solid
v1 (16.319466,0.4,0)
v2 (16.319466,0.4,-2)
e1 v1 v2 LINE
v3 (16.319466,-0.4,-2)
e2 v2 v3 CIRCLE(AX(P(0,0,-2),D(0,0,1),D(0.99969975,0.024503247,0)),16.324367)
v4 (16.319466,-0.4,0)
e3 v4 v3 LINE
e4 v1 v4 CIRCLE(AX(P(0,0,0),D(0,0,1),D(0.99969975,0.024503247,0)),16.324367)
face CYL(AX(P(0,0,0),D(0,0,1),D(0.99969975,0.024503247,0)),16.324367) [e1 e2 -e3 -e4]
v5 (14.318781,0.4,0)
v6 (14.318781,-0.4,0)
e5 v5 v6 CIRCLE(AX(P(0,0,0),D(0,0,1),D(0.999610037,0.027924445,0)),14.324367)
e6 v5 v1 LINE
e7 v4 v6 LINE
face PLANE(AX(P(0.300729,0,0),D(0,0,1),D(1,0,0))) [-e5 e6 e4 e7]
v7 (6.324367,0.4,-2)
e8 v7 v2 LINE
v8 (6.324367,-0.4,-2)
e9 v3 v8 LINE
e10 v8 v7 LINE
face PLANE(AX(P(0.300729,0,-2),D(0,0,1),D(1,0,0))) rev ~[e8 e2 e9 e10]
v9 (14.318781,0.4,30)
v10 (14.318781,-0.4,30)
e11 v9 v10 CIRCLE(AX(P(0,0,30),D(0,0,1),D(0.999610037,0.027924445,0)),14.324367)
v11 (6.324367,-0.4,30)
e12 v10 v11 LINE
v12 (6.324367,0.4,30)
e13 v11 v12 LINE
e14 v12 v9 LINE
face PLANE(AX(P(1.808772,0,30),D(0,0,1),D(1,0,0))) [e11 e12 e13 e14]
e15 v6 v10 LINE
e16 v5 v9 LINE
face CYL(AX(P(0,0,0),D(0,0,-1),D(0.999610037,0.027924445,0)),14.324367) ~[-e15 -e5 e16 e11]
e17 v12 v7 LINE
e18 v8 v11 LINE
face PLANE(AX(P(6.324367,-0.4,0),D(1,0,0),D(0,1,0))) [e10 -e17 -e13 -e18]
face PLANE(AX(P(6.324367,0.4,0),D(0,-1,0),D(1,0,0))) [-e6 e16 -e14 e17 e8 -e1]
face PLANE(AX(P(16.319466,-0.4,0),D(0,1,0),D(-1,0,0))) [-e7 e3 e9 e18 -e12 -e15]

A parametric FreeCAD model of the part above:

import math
import FreeCAD as App
import Part
import Sketcher

doc = App.newDocument("Part")
params = doc.addObject("Spreadsheet::Sheet", "Params")
for row, (alias, value) in enumerate([
    ("sketch1_height", "0.8 mm"),
    ("pad1_length", "30 mm"),
    ("sketch2_height", "0.8 mm"),
    ("pad2_length", "2 mm"),
], start=1):
    params.set(f"A{row}", alias)
    params.set(f"B{row}", "=" + value)
    params.setAlias(f"B{row}", alias)

body = doc.addObject("PartDesign::Body", "Body")

sketch1 = doc.addObject("Sketcher::SketchObject", "Sketch")
body.addObject(sketch1)
sketch1.AttachmentSupport = (doc.XY_Plane, [""])
sketch1.MapMode = "FlatFace"
sketch1.addGeometry([
    Part.LineSegment(App.Vector(6.324367, 0.4, 0), App.Vector(14.318781, 0.4, 0)),
    Part.ArcOfCircle(Part.Circle(App.Vector(0, 0, 0), App.Vector(0, 0, 1), 14.324367), math.radians(1.600161), math.radians(358.399839)),
    Part.LineSegment(App.Vector(14.318781, -0.4, 0), App.Vector(6.324367, -0.4, 0)),
    Part.LineSegment(App.Vector(6.324367, -0.4, 0), App.Vector(6.324367, 0.4, 0)),
], False)
sketch1.addConstraint([
    Sketcher.Constraint("Coincident", 0, 2, 1, 1),
    Sketcher.Constraint("Coincident", 1, 2, 2, 1),
    Sketcher.Constraint("Coincident", 2, 2, 3, 1),
    Sketcher.Constraint("Coincident", 3, 2, 0, 1),
    Sketcher.Constraint("Horizontal", 0),
    Sketcher.Constraint("Horizontal", 2),
    Sketcher.Constraint("Vertical", 3),
    Sketcher.Constraint("Coincident", 1, 3, -1, 1),
    Sketcher.Constraint("Vertical", 0, 2, 1, 2),
    Sketcher.Constraint("DistanceY", 3, 1, 3, 2, 0.8),
    Sketcher.Constraint("Radius", 1, 14.324367),
    Sketcher.Constraint("DistanceX", 0, 1, 0, 2, 7.994414),
])
sketch1.setExpression("Constraints[9]", "Params.sketch1_height")
pad1 = doc.addObject("PartDesign::Pad", "Pad")
body.addObject(pad1)
pad1.Profile = sketch1
pad1.setExpression("Length", "Params.pad1_length")

sketch2 = doc.addObject("Sketcher::SketchObject", "Sketch001")
body.addObject(sketch2)
sketch2.AttachmentSupport = (doc.XY_Plane, [""])
sketch2.MapMode = "FlatFace"
sketch2.addGeometry([
    Part.ArcOfCircle(Part.Circle(App.Vector(0, 0, 0), App.Vector(0, 0, 1), 16.324367), math.radians(1.404073), math.radians(358.595927)),
    Part.LineSegment(App.Vector(16.319466, -0.4, 0), App.Vector(6.324367, -0.4, 0)),
    Part.LineSegment(App.Vector(6.324367, -0.4, 0), App.Vector(6.324367, 0.4, 0)),
    Part.LineSegment(App.Vector(6.324367, 0.4, 0), App.Vector(16.319466, 0.4, 0)),
], False)
sketch2.addConstraint([
    Sketcher.Constraint("Coincident", 0, 2, 1, 1),
    Sketcher.Constraint("Coincident", 1, 2, 2, 1),
    Sketcher.Constraint("Coincident", 2, 2, 3, 1),
    Sketcher.Constraint("Coincident", 3, 2, 0, 1),
    Sketcher.Constraint("Horizontal", 1),
    Sketcher.Constraint("Vertical", 2),
    Sketcher.Constraint("Horizontal", 3),
    Sketcher.Constraint("Coincident", 0, 3, -1, 1),
    Sketcher.Constraint("Vertical", 0, 2, 3, 2),
    Sketcher.Constraint("DistanceY", 2, 1, 2, 2, 0.8),
    Sketcher.Constraint("DistanceX", 1, 2, 1, 1, 9.995099),
    Sketcher.Constraint("Radius", 0, 16.324367),
])
sketch2.setExpression("Constraints[9]", "Params.sketch2_height")
pad2 = doc.addObject("PartDesign::Pad", "Pad001")
body.addObject(pad2)
pad2.Profile = sketch2
pad2.setExpression("Length", "Params.pad2_length")
pad2.Reversed = True

doc.recompute()
